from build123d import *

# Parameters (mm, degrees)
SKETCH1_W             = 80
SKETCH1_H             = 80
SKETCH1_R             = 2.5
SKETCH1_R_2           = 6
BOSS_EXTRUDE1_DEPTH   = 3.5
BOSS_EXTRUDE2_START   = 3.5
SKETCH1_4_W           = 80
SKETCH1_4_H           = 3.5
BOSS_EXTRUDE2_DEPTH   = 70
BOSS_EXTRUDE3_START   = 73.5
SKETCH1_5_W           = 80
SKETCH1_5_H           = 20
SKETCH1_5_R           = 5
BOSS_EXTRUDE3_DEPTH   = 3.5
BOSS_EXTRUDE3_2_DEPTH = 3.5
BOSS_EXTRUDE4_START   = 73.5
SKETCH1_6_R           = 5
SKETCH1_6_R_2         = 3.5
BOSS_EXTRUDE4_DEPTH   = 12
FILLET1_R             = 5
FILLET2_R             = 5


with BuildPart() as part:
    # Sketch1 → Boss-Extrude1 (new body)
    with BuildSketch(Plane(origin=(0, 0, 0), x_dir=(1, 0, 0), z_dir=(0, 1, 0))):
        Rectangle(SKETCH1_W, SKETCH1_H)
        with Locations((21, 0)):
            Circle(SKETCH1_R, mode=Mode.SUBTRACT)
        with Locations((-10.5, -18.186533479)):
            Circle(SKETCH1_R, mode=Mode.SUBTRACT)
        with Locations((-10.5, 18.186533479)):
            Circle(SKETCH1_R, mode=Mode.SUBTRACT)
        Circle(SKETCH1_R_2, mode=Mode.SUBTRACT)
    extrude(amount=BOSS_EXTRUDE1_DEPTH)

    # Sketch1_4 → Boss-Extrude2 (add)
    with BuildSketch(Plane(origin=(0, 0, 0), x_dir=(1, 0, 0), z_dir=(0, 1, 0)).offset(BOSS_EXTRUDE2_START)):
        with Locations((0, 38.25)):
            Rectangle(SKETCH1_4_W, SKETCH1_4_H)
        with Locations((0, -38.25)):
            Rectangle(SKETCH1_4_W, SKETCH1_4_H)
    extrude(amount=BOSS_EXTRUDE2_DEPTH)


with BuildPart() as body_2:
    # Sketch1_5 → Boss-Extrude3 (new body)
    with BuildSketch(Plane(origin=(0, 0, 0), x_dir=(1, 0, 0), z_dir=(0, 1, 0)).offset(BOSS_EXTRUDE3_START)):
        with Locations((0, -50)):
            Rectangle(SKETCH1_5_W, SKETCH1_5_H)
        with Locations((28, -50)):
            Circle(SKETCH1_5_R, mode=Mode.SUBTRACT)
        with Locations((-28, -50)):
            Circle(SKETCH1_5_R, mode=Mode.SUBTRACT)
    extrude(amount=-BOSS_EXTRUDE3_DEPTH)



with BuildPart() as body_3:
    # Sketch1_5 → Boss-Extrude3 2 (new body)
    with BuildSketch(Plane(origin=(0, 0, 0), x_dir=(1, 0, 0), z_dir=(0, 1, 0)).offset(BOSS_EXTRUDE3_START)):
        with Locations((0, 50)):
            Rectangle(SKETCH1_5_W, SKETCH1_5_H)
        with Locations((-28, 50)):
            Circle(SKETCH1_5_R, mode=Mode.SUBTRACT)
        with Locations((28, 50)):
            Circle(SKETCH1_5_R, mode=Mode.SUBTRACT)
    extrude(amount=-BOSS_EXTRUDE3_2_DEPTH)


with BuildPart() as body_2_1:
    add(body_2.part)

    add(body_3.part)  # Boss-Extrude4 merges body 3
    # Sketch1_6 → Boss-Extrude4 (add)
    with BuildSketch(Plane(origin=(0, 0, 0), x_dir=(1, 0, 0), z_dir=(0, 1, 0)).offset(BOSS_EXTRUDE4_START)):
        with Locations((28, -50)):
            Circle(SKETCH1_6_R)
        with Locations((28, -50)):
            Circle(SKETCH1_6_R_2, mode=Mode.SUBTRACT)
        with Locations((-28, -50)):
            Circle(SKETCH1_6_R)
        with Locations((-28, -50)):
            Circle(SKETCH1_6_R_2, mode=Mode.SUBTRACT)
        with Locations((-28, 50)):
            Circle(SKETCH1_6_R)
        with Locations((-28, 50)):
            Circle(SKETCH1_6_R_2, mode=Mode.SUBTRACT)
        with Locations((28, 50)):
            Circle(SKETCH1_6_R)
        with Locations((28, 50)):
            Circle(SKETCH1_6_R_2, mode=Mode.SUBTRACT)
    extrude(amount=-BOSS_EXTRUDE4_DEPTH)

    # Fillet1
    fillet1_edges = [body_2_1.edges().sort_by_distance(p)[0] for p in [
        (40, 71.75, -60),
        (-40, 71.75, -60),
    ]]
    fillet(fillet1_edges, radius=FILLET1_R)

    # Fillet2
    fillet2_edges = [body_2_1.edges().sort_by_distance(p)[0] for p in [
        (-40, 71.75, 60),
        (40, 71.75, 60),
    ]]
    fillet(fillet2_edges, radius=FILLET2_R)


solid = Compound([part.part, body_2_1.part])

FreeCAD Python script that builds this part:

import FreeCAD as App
import Part
import Sketcher

V = App.Vector


def edges_at(feature, points):
    """Names of the edges that pass closest to the given points."""
    edges = feature.Shape.Edges
    near = lambda p: min(range(len(edges)), key=lambda i: edges[i].distToShape(Part.Vertex(*p))[0])
    return sorted({f"Edge{near(p) + 1}" for p in points})

doc = App.newDocument("Part")
params = doc.addObject("Spreadsheet::Sheet", "Params")
for row, (alias, value) in enumerate([
    ("sketch1_diameter", "5 mm"),
    ("sketch1_diameter2", "12 mm"),
    ("sketch1_width", "80 mm"),
    ("pad1_length", "3.5 mm"),
    ("sketch2_width", "80 mm"),
    ("sketch2_height", "3.5 mm"),
    ("pad2_length", "70 mm"),
    ("sketch3_diameter", "10 mm"),
    ("sketch3_width", "80 mm"),
    ("sketch3_height", "20 mm"),
    ("pad3_length", "3.5 mm"),
    ("sketch4_diameter", "10 mm"),
    ("sketch4_width", "80 mm"),
    ("sketch4_height", "20 mm"),
    ("pad4_length", "3.5 mm"),
    ("sketch5_diameter", "10 mm"),
    ("sketch5_diameter2", "7 mm"),
    ("pad5_length", "12 mm"),
    ("fillet_radius", "5 mm"),
    ("fillet2_radius", "5 mm"),
], start=1):
    params.set(f"A{row}", alias)
    params.set(f"B{row}", "=" + value)
    params.setAlias(f"B{row}", alias)

body = doc.addObject("PartDesign::Body", "Body")

# Sketch on XZ plane
sketch1 = body.newObject("Sketcher::SketchObject", "Sketch")
sketch1.AttachmentSupport = (doc.getObject("XZ_Plane"), [""])
sketch1.MapMode = "FlatFace"
sketch1.addGeometry([
    Part.LineSegment(V(-40, -40, 0), V(-40, 40, 0)),  # 0
    Part.LineSegment(V(-40, 40, 0), V(40, 40, 0)),  # 1
    Part.LineSegment(V(40, 40, 0), V(40, -40, 0)),  # 2
    Part.LineSegment(V(40, -40, 0), V(-40, -40, 0)),  # 3
    Part.Circle(V(-10.5, 18.2, 0), V(0, 0, 1), 2.5),  # 4
    Part.Circle(V(0, 0, 0), V(0, 0, 1), 6),  # 5
    Part.Circle(V(21, 0, 0), V(0, 0, 1), 2.5),  # 6
    Part.Circle(V(-10.5, -18.2, 0), V(0, 0, 1), 2.5),  # 7
], False)
sketch1.addConstraint([
    Sketcher.Constraint("Coincident", 0, 2, 1, 1),
    Sketcher.Constraint("Coincident", 1, 2, 2, 1),
    Sketcher.Constraint("Coincident", 2, 2, 3, 1),
    Sketcher.Constraint("Coincident", 3, 2, 0, 1),
    Sketcher.Constraint("Vertical", 0),
    Sketcher.Constraint("Horizontal", 1),
    Sketcher.Constraint("Vertical", 2),
    Sketcher.Constraint("Horizontal", 3),
    Sketcher.Constraint("Coincident", 5, 3, -1, 1),
    Sketcher.Constraint("Equal", 4, 6),
    Sketcher.Constraint("Equal", 6, 7),
    Sketcher.Constraint("Symmetric", 0, 2, 2, 2, -1, 1),
    Sketcher.Constraint("Symmetric", 4, 3, 7, 3, -1),
    Sketcher.Constraint("PointOnObject", 6, 3, -1),
    Sketcher.Constraint("Equal", 3, 0),
    Sketcher.Constraint("Diameter", 4, 5.0),
    Sketcher.Constraint("Diameter", 5, 12.0),
    Sketcher.Constraint("DistanceX", 1, 1, 1, 2, 80.0),
    Sketcher.Constraint("DistanceX", -1, 1, 6, 3, 21.0),
    Sketcher.Constraint("DistanceX", 4, 3, -1, 1, 10.5),
    Sketcher.Constraint("DistanceY", -1, 1, 4, 3, 18.186533),
])
sketch1.setExpression("Constraints[15]", "Params.sketch1_diameter")
sketch1.setExpression("Constraints[16]", "Params.sketch1_diameter2")
sketch1.setExpression("Constraints[17]", "Params.sketch1_width")
pad1 = body.newObject("PartDesign::Pad", "Pad")
pad1.Profile = sketch1
pad1.setExpression("Length", "Params.pad1_length")
pad1.Reversed = True

# Sketch on XZ plane
sketch2 = body.newObject("Sketcher::SketchObject", "Sketch001")
sketch2.AttachmentSupport = (doc.getObject("XZ_Plane"), [""])
sketch2.MapMode = "FlatFace"
sketch2.AttachmentOffset = App.Placement(V(0, 0, -3.5), App.Rotation())
sketch2.addGeometry([
    Part.LineSegment(V(-40, -40, 0), V(-40, -36.5, 0)),  # 0
    Part.LineSegment(V(-40, -36.5, 0), V(40, -36.5, 0)),  # 1
    Part.LineSegment(V(40, -36.5, 0), V(40, -40, 0)),  # 2
    Part.LineSegment(V(40, -40, 0), V(-40, -40, 0)),  # 3
    Part.LineSegment(V(-40, 36.5, 0), V(-40, 40, 0)),  # 4
    Part.LineSegment(V(-40, 40, 0), V(40, 40, 0)),  # 5
    Part.LineSegment(V(40, 40, 0), V(40, 36.5, 0)),  # 6
    Part.LineSegment(V(40, 36.5, 0), V(-40, 36.5, 0)),  # 7
], False)
sketch2.addConstraint([
    Sketcher.Constraint("Coincident", 0, 2, 1, 1),
    Sketcher.Constraint("Coincident", 1, 2, 2, 1),
    Sketcher.Constraint("Coincident", 2, 2, 3, 1),
    Sketcher.Constraint("Coincident", 3, 2, 0, 1),
    Sketcher.Constraint("Coincident", 4, 2, 5, 1),
    Sketcher.Constraint("Coincident", 5, 2, 6, 1),
    Sketcher.Constraint("Coincident", 6, 2, 7, 1),
    Sketcher.Constraint("Coincident", 7, 2, 4, 1),
    Sketcher.Constraint("Vertical", 0),
    Sketcher.Constraint("Horizontal", 1),
    Sketcher.Constraint("Vertical", 2),
    Sketcher.Constraint("Horizontal", 3),
    Sketcher.Constraint("Vertical", 4),
    Sketcher.Constraint("Horizontal", 5),
    Sketcher.Constraint("Vertical", 6),
    Sketcher.Constraint("Horizontal", 7),
    Sketcher.Constraint("Symmetric", 2, 2, 4, 2, -1, 1),
    Sketcher.Constraint("Symmetric", 0, 2, 6, 2, -1, 1),
    Sketcher.Constraint("Vertical", 3, 2, 4, 2),
    Sketcher.Constraint("DistanceX", 1, 1, 1, 2, 80.0),
    Sketcher.Constraint("DistanceY", 0, 1, 0, 2, 3.5),
    Sketcher.Constraint("DistanceY", 2, 2, -1, 1, 40.0),
])
sketch2.setExpression("Constraints[19]", "Params.sketch2_width")
sketch2.setExpression("Constraints[20]", "Params.sketch2_height")
pad2 = body.newObject("PartDesign::Pad", "Pad001")
pad2.Profile = sketch2
pad2.setExpression("Length", "Params.pad2_length")
pad2.Reversed = True
body2 = doc.addObject("PartDesign::Body", "Body001")

# Sketch on XZ plane
sketch3 = body2.newObject("Sketcher::SketchObject", "Sketch002")
sketch3.AttachmentSupport = (doc.getObject("XZ_Plane001"), [""])
sketch3.MapMode = "FlatFace"
sketch3.AttachmentOffset = App.Placement(V(0, 0, -73.5), App.Rotation())
sketch3.addGeometry([
    Part.LineSegment(V(-40, 40, 0), V(-40, 60, 0)),  # 0
    Part.LineSegment(V(-40, 60, 0), V(40, 60, 0)),  # 1
    Part.LineSegment(V(40, 60, 0), V(40, 40, 0)),  # 2
    Part.LineSegment(V(40, 40, 0), V(-40, 40, 0)),  # 3
    Part.Circle(V(-28, 50, 0), V(0, 0, 1), 5),  # 4
    Part.Circle(V(28, 50, 0), V(0, 0, 1), 5),  # 5
], False)
sketch3.addConstraint([
    Sketcher.Constraint("Coincident", 0, 2, 1, 1),
    Sketcher.Constraint("Coincident", 1, 2, 2, 1),
    Sketcher.Constraint("Coincident", 2, 2, 3, 1),
    Sketcher.Constraint("Coincident", 3, 2, 0, 1),
    Sketcher.Constraint("Vertical", 0),
    Sketcher.Constraint("Horizontal", 1),
    Sketcher.Constraint("Vertical", 2),
    Sketcher.Constraint("Horizontal", 3),
    Sketcher.Constraint("Equal", 4, 5),
    Sketcher.Constraint("Symmetric", 4, 3, 5, 3, -2),
    Sketcher.Constraint("Diameter", 4, 10.0),
    Sketcher.Constraint("DistanceX", 1, 1, 1, 2, 80.0),
    Sketcher.Constraint("DistanceY", 0, 1, 0, 2, 20.0),
    Sketcher.Constraint("DistanceX", 4, 3, -1, 1, 28.0),
    Sketcher.Constraint("DistanceY", -1, 1, 4, 3, 50.0),
    Sketcher.Constraint("DistanceX", 0, 2, -1, 1, 40.0),
    Sketcher.Constraint("DistanceY", -1, 1, 0, 2, 60.0),
])
sketch3.setExpression("Constraints[10]", "Params.sketch3_diameter")
sketch3.setExpression("Constraints[11]", "Params.sketch3_width")
sketch3.setExpression("Constraints[12]", "Params.sketch3_height")
pad3 = body2.newObject("PartDesign::Pad", "Pad002")
pad3.Profile = sketch3
pad3.setExpression("Length", "Params.pad3_length")
body3 = doc.addObject("PartDesign::Body", "Body002")

# Sketch on XZ plane
sketch4 = body3.newObject("Sketcher::SketchObject", "Sketch003")
sketch4.AttachmentSupport = (doc.getObject("XZ_Plane002"), [""])
sketch4.MapMode = "FlatFace"
sketch4.AttachmentOffset = App.Placement(V(0, 0, -73.5), App.Rotation())
sketch4.addGeometry([
    Part.LineSegment(V(-40, -60, 0), V(-40, -40, 0)),  # 0
    Part.LineSegment(V(-40, -40, 0), V(40, -40, 0)),  # 1
    Part.LineSegment(V(40, -40, 0), V(40, -60, 0)),  # 2
    Part.LineSegment(V(40, -60, 0), V(-40, -60, 0)),  # 3
    Part.Circle(V(-28, -50, 0), V(0, 0, 1), 5),  # 4
    Part.Circle(V(28, -50, 0), V(0, 0, 1), 5),  # 5
], False)
sketch4.addConstraint([
    Sketcher.Constraint("Coincident", 0, 2, 1, 1),
    Sketcher.Constraint("Coincident", 1, 2, 2, 1),
    Sketcher.Constraint("Coincident", 2, 2, 3, 1),
    Sketcher.Constraint("Coincident", 3, 2, 0, 1),
    Sketcher.Constraint("Vertical", 0),
    Sketcher.Constraint("Horizontal", 1),
    Sketcher.Constraint("Vertical", 2),
    Sketcher.Constraint("Horizontal", 3),
    Sketcher.Constraint("Equal", 4, 5),
    Sketcher.Constraint("Symmetric", 4, 3, 5, 3, -2),
    Sketcher.Constraint("Diameter", 4, 10.0),
    Sketcher.Constraint("DistanceX", 1, 1, 1, 2, 80.0),
    Sketcher.Constraint("DistanceY", 0, 1, 0, 2, 20.0),
    Sketcher.Constraint("DistanceX", 4, 3, -1, 1, 28.0),
    Sketcher.Constraint("DistanceY", 4, 3, -1, 1, 50.0),
    Sketcher.Constraint("DistanceX", 0, 2, -1, 1, 40.0),
    Sketcher.Constraint("DistanceY", 0, 2, -1, 1, 40.0),
])
sketch4.setExpression("Constraints[10]", "Params.sketch4_diameter")
sketch4.setExpression("Constraints[11]", "Params.sketch4_width")
sketch4.setExpression("Constraints[12]", "Params.sketch4_height")
pad4 = body3.newObject("PartDesign::Pad", "Pad003")
pad4.Profile = sketch4
pad4.setExpression("Length", "Params.pad4_length")
body2.AllowCompound = True
doc.recompute()

boolean = body2.newObject("PartDesign::Boolean", "Boolean")
boolean.Type = "Fuse"
boolean.addObjects([body3])

# Sketch on XZ plane
sketch5 = body2.newObject("Sketcher::SketchObject", "Sketch004")
sketch5.AttachmentSupport = (doc.getObject("XZ_Plane001"), [""])
sketch5.MapMode = "FlatFace"
sketch5.AttachmentOffset = App.Placement(V(0, 0, -73.5), App.Rotation())
sketch5.addGeometry([
    Part.Circle(V(28, 50, 0), V(0, 0, 1), 5),  # 0
    Part.Circle(V(28, 50, 0), V(0, 0, 1), 3.5),  # 1
    Part.Circle(V(-28, 50, 0), V(0, 0, 1), 5),  # 2
    Part.Circle(V(-28, 50, 0), V(0, 0, 1), 3.5),  # 3
    Part.Circle(V(-28, -50, 0), V(0, 0, 1), 5),  # 4
    Part.Circle(V(-28, -50, 0), V(0, 0, 1), 3.5),  # 5
    Part.Circle(V(28, -50, 0), V(0, 0, 1), 5),  # 6
    Part.Circle(V(28, -50, 0), V(0, 0, 1), 3.5),  # 7
], False)
sketch5.addConstraint([
    Sketcher.Constraint("Coincident", 1, 3, 0, 3),
    Sketcher.Constraint("Coincident", 3, 3, 2, 3),
    Sketcher.Constraint("Coincident", 5, 3, 4, 3),
    Sketcher.Constraint("Coincident", 7, 3, 6, 3),
    Sketcher.Constraint("Equal", 0, 2),
    Sketcher.Constraint("Equal", 1, 3),
    Sketcher.Constraint("Equal", 2, 4),
    Sketcher.Constraint("Equal", 3, 5),
    Sketcher.Constraint("Equal", 4, 6),
    Sketcher.Constraint("Equal", 5, 7),
    Sketcher.Constraint("Symmetric", 0, 3, 4, 3, -1, 1),
    Sketcher.Constraint("Symmetric", 2, 3, 6, 3, -1, 1),
    Sketcher.Constraint("Symmetric", 0, 3, 2, 3, -2),
    Sketcher.Constraint("Diameter", 0, 10.0),
    Sketcher.Constraint("Diameter", 1, 7.0),
    Sketcher.Constraint("DistanceX", -1, 1, 0, 3, 28.0),
    Sketcher.Constraint("DistanceY", -1, 1, 0, 3, 50.0),
])
sketch5.setExpression("Constraints[13]", "Params.sketch5_diameter")
sketch5.setExpression("Constraints[14]", "Params.sketch5_diameter2")
pad5 = body2.newObject("PartDesign::Pad", "Pad004")
pad5.Profile = sketch5
pad5.setExpression("Length", "Params.pad5_length")
doc.recompute()

fillet = body2.newObject("PartDesign::Fillet", "Fillet")
fillet.Base = (pad5, edges_at(pad5, [(40, 71.75, -60), (-40, 71.75, -60)]))
fillet.setExpression("Radius", "Params.fillet_radius")
doc.recompute()

fillet2 = body2.newObject("PartDesign::Fillet", "Fillet001")
fillet2.Base = (fillet, edges_at(fillet, [(-40, 71.75, 60), (40, 71.75, 60)]))
fillet2.setExpression("Radius", "Params.fillet2_radius")

doc.recompute()
